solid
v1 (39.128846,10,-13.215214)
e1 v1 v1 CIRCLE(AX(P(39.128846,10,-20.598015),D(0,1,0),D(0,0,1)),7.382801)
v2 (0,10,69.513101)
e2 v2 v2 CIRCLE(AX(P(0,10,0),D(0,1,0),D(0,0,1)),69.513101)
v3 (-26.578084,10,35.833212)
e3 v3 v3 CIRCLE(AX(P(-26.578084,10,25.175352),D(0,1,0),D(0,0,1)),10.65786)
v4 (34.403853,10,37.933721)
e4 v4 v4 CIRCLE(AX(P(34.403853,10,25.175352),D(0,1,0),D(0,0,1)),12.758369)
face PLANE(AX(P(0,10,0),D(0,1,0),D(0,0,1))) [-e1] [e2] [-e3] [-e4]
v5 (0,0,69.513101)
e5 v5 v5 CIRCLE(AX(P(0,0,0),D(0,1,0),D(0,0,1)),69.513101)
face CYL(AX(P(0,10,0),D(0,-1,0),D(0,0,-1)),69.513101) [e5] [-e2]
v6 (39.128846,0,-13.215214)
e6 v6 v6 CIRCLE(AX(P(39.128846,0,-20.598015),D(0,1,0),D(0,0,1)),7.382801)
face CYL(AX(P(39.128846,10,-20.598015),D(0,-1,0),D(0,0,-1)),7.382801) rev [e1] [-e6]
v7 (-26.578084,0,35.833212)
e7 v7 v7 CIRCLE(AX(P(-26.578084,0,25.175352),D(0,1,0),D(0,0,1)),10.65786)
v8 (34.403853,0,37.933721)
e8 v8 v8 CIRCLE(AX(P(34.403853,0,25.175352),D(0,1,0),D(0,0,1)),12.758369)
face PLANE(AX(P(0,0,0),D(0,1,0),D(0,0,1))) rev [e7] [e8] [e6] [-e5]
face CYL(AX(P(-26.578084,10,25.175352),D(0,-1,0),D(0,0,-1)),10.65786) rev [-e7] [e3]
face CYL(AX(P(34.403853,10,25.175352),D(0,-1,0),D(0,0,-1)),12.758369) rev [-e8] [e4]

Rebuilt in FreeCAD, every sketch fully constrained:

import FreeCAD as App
import Part
import Sketcher

doc = App.newDocument("Part")
body = doc.addObject("PartDesign::Body", "Body")

sketch1 = body.newObject("Sketcher::SketchObject", "Sketch")
sketch1.AttachmentSupport = (doc.getObject("XZ_Plane"), [""])
sketch1.MapMode = "FlatFace"
sketch1.addGeometry([
    Part.Circle(App.Vector(0, 0, 0), App.Vector(0, 0, 1), 70),
    Part.Circle(App.Vector(-27, 25, 0), App.Vector(0, 0, 1), 11),
    Part.Circle(App.Vector(39, -21, 0), App.Vector(0, 0, 1), 7),
    Part.Circle(App.Vector(34, 25, 0), App.Vector(0, 0, 1), 13),
], False)
sketch1.addConstraint([
    Sketcher.Constraint("Coincident", 0, 3, -1, 1),
    Sketcher.Constraint("Horizontal", 1, 3, 3, 3),
    Sketcher.Constraint("Diameter", 0, 139.026201),
    Sketcher.Constraint("Diameter", 1, 21.315721),
    Sketcher.Constraint("Diameter", 2, 14.765602),
    Sketcher.Constraint("Diameter", 3, 25.516738),
    Sketcher.Constraint("DistanceY", -1, 1, 1, 3, 25.175352),
    Sketcher.Constraint("DistanceX", 1, 3, 2, 3, 65.706929),
    Sketcher.Constraint("DistanceX", 1, 3, -1, 1, 26.578084),
    Sketcher.Constraint("DistanceY", 2, 3, -1, 1, 20.598015),
    Sketcher.Constraint("DistanceX", -1, 1, 3, 3, 34.403853),
])
pad1 = body.newObject("PartDesign::Pad", "Pad")
pad1.Profile = sketch1
pad1.Length = 10
pad1.Reversed = True

doc.recompute()
